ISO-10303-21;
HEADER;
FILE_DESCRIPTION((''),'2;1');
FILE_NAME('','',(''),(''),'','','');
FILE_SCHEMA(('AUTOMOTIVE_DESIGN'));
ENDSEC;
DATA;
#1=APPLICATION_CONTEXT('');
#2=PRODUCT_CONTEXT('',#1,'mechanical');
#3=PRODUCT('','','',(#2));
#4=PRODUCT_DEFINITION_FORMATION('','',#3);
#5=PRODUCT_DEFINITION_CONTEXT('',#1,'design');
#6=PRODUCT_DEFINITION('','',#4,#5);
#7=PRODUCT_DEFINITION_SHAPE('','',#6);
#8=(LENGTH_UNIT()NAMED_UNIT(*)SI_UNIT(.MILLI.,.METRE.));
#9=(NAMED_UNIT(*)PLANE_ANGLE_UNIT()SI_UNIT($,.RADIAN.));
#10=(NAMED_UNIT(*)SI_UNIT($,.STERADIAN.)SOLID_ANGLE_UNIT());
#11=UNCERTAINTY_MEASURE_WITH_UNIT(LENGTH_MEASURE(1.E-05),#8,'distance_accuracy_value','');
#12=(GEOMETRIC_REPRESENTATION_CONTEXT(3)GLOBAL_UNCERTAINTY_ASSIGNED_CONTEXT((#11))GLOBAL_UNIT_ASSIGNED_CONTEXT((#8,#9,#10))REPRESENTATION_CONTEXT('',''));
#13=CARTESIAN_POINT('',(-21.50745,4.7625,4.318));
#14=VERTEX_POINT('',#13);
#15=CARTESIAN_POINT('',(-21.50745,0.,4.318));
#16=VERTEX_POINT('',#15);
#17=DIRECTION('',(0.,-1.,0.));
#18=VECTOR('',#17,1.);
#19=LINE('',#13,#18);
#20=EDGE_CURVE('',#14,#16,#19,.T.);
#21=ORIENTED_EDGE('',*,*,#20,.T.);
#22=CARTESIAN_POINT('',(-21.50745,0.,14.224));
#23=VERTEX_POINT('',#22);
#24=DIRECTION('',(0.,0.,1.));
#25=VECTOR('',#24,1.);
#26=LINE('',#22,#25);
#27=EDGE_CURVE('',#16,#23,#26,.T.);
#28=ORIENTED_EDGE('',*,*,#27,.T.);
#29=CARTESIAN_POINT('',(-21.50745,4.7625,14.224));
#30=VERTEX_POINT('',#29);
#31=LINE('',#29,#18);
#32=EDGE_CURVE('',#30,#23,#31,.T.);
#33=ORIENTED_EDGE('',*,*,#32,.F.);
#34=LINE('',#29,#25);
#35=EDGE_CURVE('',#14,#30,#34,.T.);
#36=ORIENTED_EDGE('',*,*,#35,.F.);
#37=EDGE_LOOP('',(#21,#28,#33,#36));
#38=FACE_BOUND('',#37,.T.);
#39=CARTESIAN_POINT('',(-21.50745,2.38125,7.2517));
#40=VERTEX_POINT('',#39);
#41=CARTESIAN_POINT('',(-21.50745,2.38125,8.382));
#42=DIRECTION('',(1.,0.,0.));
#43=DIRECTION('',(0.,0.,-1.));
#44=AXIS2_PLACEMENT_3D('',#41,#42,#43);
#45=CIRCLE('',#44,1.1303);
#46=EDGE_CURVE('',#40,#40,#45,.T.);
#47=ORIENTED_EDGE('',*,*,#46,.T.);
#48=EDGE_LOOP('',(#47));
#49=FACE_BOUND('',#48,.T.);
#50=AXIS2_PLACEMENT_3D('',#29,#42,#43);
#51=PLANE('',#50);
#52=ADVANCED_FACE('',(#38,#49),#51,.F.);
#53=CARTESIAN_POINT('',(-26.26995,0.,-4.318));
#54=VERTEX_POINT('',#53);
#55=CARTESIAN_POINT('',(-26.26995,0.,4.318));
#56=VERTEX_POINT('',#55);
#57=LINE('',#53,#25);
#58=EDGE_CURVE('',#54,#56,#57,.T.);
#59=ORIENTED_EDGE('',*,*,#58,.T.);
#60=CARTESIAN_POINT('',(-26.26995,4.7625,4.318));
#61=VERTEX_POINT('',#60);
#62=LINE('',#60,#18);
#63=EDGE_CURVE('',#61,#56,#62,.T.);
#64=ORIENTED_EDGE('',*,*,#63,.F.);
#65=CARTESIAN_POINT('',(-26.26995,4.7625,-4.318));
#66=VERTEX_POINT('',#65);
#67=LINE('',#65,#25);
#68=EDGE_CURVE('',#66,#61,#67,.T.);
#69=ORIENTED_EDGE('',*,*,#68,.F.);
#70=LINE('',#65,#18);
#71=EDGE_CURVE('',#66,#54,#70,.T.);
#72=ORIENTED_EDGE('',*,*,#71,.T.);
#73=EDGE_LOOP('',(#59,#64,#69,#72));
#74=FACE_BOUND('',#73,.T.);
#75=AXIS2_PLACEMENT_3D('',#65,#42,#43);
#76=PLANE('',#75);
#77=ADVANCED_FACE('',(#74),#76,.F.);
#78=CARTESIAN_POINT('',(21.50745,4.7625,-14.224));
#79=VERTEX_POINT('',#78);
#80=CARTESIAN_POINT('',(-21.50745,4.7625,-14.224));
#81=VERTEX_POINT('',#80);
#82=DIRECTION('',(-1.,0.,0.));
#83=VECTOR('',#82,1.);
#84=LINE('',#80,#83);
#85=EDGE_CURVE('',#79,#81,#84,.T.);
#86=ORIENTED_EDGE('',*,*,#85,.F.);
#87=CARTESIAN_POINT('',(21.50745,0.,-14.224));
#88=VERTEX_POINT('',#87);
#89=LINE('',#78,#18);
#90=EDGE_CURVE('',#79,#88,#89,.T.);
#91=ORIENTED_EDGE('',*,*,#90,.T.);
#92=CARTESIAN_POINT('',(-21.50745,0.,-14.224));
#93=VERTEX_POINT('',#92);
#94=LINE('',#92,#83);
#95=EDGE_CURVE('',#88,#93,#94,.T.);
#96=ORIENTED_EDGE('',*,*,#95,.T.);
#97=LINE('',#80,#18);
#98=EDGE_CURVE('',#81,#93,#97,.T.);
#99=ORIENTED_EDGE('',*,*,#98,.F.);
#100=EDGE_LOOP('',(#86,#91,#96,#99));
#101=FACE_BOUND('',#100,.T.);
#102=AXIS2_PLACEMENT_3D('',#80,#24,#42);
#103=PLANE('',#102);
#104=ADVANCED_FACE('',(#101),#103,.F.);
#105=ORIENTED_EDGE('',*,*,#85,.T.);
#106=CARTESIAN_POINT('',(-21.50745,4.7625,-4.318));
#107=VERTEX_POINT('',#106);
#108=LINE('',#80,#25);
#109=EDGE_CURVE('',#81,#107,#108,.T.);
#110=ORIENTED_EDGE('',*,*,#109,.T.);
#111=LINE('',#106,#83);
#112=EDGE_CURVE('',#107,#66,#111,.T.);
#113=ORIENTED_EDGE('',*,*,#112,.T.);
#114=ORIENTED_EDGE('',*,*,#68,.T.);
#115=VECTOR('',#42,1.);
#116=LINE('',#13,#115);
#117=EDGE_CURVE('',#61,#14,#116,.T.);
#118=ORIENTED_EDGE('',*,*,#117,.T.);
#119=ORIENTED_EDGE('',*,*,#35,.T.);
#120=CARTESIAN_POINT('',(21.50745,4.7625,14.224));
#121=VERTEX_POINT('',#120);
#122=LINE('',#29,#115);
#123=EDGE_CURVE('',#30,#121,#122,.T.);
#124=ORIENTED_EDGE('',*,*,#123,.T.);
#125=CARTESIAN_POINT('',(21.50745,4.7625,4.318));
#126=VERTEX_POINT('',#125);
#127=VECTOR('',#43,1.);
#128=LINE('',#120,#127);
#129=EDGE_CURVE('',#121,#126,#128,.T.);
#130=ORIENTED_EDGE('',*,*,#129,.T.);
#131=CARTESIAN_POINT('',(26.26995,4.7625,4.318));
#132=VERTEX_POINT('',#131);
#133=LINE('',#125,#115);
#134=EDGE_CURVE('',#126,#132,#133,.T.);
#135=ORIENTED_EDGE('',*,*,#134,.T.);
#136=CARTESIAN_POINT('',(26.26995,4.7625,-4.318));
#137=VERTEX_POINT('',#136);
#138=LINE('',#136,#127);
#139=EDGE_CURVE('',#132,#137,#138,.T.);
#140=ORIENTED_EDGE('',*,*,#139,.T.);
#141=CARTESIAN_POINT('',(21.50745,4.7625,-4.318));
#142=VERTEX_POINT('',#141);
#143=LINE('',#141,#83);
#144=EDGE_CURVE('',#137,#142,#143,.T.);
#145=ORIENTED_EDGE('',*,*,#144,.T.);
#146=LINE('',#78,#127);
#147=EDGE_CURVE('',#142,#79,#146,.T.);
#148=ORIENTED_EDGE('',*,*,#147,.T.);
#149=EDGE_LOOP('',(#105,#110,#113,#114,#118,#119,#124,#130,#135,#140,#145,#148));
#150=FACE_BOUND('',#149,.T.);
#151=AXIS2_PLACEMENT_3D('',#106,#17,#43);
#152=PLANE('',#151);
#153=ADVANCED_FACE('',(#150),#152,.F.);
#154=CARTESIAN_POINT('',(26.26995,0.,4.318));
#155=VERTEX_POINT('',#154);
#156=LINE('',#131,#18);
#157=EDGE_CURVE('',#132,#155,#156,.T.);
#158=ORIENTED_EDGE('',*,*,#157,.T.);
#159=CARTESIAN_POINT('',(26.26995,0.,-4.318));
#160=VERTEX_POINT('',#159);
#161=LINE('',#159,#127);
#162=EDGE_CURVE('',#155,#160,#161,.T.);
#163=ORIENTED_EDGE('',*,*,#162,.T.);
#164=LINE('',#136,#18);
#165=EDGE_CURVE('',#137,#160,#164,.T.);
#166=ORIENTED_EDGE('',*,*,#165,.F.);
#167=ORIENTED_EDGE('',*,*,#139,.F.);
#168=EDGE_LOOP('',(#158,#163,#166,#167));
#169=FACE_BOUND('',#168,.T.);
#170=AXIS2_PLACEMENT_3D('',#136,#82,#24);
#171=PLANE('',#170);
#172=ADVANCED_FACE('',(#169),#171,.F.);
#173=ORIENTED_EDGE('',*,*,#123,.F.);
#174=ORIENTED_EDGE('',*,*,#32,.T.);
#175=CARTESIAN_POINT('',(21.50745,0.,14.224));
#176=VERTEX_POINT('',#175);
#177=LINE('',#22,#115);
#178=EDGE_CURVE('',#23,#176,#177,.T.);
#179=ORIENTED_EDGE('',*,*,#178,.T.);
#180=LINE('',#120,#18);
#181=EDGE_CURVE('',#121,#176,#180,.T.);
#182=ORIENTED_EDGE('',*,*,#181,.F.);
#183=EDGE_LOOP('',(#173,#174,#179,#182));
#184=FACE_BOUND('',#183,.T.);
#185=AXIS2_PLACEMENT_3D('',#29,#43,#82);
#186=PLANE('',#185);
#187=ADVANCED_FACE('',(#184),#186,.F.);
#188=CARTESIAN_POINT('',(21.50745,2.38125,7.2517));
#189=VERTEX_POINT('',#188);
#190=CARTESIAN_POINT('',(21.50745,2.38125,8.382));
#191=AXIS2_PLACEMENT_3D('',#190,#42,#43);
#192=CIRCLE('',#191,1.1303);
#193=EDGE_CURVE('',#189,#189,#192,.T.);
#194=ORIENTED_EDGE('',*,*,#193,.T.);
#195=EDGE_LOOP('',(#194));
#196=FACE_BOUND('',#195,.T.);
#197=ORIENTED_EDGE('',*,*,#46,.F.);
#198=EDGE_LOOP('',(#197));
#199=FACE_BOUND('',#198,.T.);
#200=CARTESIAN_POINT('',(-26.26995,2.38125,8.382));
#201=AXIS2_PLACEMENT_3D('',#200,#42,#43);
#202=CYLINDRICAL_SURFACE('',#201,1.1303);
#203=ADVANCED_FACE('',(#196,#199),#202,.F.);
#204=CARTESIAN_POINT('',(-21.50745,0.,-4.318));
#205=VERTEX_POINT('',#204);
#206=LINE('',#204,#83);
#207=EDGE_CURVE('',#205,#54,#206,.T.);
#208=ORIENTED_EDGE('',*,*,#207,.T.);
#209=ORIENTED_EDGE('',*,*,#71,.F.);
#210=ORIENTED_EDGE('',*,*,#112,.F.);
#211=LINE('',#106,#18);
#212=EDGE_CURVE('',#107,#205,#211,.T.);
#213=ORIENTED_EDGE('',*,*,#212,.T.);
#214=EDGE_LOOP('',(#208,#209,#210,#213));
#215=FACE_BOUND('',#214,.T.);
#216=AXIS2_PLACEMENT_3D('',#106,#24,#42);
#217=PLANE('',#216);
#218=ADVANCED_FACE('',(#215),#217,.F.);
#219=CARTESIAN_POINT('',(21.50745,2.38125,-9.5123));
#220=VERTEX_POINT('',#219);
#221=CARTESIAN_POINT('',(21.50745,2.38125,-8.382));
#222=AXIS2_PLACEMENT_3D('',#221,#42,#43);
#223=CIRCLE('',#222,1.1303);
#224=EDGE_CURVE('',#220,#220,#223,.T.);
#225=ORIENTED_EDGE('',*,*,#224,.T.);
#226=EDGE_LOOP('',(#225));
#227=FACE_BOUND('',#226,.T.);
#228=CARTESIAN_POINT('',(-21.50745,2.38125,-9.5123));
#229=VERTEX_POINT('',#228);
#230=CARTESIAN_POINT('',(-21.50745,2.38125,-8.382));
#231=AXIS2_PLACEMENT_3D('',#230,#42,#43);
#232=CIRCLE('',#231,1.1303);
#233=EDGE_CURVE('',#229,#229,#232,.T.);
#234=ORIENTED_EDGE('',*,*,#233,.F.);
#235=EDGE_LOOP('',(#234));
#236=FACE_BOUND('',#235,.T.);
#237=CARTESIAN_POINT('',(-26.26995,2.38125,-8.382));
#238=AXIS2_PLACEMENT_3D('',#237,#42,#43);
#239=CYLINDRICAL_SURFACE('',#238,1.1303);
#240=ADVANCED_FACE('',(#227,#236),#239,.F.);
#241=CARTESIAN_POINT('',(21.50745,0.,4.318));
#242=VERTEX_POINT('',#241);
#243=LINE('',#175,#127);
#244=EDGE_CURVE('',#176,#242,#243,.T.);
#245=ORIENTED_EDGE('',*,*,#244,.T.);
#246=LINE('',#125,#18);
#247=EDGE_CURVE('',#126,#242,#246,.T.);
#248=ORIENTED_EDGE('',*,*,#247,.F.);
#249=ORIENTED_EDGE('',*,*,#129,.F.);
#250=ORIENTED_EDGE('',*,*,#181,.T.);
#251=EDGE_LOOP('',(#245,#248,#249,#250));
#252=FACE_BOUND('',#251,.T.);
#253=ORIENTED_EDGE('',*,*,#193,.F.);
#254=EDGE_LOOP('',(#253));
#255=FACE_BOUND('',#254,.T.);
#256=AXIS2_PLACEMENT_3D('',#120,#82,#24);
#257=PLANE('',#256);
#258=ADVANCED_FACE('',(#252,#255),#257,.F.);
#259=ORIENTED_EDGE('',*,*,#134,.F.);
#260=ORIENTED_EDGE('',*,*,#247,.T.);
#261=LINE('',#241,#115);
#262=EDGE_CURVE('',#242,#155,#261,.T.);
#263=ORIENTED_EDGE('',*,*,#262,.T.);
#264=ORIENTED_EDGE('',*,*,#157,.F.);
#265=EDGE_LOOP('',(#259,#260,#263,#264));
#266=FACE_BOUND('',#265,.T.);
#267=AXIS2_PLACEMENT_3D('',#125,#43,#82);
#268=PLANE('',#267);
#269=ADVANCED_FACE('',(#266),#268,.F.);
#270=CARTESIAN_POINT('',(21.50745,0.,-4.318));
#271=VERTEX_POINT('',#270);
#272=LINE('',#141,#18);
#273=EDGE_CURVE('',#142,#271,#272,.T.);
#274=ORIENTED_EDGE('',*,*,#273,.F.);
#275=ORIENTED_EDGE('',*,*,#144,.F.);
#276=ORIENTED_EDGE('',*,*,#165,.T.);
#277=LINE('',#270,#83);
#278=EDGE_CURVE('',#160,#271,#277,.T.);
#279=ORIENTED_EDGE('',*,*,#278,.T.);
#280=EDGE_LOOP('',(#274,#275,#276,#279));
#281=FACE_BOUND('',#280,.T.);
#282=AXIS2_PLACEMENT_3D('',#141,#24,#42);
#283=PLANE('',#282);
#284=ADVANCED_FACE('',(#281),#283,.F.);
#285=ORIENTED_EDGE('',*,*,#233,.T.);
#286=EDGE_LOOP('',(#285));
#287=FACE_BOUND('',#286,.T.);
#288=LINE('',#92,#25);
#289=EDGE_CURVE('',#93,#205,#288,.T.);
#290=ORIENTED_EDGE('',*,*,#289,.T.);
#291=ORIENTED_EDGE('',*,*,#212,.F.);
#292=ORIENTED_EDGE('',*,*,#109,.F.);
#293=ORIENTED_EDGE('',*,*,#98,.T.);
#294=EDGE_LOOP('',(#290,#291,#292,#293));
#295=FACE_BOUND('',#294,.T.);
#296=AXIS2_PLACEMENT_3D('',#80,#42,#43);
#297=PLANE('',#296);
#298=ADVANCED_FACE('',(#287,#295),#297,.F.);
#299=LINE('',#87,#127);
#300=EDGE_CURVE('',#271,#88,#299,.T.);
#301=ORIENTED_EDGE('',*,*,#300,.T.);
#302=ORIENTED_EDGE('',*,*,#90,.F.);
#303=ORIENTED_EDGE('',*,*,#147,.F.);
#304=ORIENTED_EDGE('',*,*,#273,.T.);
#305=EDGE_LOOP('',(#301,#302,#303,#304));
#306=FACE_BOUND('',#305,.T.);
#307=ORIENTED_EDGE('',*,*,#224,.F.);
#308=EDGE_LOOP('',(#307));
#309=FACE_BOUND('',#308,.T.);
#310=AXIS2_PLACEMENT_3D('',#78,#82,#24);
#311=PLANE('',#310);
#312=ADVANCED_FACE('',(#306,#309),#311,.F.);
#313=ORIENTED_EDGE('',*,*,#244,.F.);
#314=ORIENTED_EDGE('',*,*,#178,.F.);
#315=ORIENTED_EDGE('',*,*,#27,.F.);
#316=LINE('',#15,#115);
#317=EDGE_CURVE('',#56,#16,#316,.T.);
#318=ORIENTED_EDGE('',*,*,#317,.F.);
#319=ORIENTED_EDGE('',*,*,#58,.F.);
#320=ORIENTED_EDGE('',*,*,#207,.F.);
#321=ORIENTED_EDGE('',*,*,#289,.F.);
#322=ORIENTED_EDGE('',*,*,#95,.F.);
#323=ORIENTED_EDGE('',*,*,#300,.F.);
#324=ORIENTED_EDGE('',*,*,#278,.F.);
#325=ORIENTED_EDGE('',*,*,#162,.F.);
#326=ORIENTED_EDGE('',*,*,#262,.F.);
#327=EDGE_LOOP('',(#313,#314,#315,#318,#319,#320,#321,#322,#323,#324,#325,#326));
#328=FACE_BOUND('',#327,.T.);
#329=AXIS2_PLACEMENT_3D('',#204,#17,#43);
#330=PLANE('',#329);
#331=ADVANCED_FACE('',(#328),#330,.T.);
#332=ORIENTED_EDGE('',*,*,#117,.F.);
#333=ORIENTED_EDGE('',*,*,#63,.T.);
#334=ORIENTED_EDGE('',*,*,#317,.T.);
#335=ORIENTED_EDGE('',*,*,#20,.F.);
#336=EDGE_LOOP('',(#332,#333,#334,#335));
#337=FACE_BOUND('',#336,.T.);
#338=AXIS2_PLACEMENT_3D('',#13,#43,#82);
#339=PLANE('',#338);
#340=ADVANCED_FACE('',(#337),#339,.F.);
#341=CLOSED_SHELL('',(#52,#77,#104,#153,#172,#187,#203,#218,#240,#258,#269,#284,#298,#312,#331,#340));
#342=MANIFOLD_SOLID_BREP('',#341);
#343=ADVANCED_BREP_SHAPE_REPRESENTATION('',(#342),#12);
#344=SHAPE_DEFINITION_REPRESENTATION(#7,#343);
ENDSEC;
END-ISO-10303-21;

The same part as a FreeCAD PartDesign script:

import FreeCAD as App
import Part
import Sketcher

V = App.Vector
Q = App.Units.Quantity

doc = App.newDocument("Part")
params = doc.addObject("Spreadsheet::Sheet", "Params")
for row, (alias, value) in enumerate([
    ("sketch1_height", "0.39 in"),
    ("sketch1_height2", "0.34 in"),
    ("sketch1_width", "0.1875 in"),
    ("pad1_length", "0.1875 in"),
    ("sketch2_diameter", "0.089 in"),
], start=1):
    params.set(f"A{row}", alias)
    params.set(f"B{row}", "=" + value)
    params.setAlias(f"B{row}", alias)

body = doc.addObject("PartDesign::Body", "Body")

sketch1 = body.newObject("Sketcher::SketchObject", "Sketch")
sketch1.AttachmentSupport = (doc.getObject("XZ_Plane"), [""])
sketch1.MapMode = "FlatFace"
sketch1.addGeometry([
    Part.LineSegment(V(21.50745, -14.224, 0), V(-21.50745, -14.224, 0)),
    Part.LineSegment(V(-21.50745, -14.224, 0), V(-21.50745, -4.318, 0)),
    Part.LineSegment(V(-21.50745, -4.318, 0), V(-26.26995, -4.318, 0)),
    Part.LineSegment(V(-26.26995, -4.318, 0), V(-26.26995, 4.318, 0)),
    Part.LineSegment(V(-26.26995, 4.318, 0), V(-21.50745, 4.318, 0)),
    Part.LineSegment(V(-21.50745, 4.318, 0), V(-21.50745, 14.224, 0)),
    Part.LineSegment(V(-21.50745, 14.224, 0), V(21.50745, 14.224, 0)),
    Part.LineSegment(V(21.50745, 14.224, 0), V(21.50745, 4.318, 0)),
    Part.LineSegment(V(21.50745, 4.318, 0), V(26.26995, 4.318, 0)),
    Part.LineSegment(V(26.26995, 4.318, 0), V(26.26995, -4.318, 0)),
    Part.LineSegment(V(26.26995, -4.318, 0), V(21.50745, -4.318, 0)),
    Part.LineSegment(V(21.50745, -4.318, 0), V(21.50745, -14.224, 0)),
], False)
sketch1.addConstraint([
    Sketcher.Constraint("Coincident", 0, 2, 1, 1),
    Sketcher.Constraint("Coincident", 1, 2, 2, 1),
    Sketcher.Constraint("Coincident", 2, 2, 3, 1),
    Sketcher.Constraint("Coincident", 3, 2, 4, 1),
    Sketcher.Constraint("Coincident", 4, 2, 5, 1),
    Sketcher.Constraint("Coincident", 5, 2, 6, 1),
    Sketcher.Constraint("Coincident", 6, 2, 7, 1),
    Sketcher.Constraint("Coincident", 7, 2, 8, 1),
    Sketcher.Constraint("Coincident", 8, 2, 9, 1),
    Sketcher.Constraint("Coincident", 9, 2, 10, 1),
    Sketcher.Constraint("Coincident", 10, 2, 11, 1),
    Sketcher.Constraint("Coincident", 11, 2, 0, 1),
    Sketcher.Constraint("Horizontal", 0),
    Sketcher.Constraint("Vertical", 1),
    Sketcher.Constraint("Horizontal", 2),
    Sketcher.Constraint("Vertical", 3),
    Sketcher.Constraint("Horizontal", 4),
    Sketcher.Constraint("Vertical", 5),
    Sketcher.Constraint("Horizontal", 6),
    Sketcher.Constraint("Vertical", 7),
    Sketcher.Constraint("Horizontal", 8),
    Sketcher.Constraint("Vertical", 9),
    Sketcher.Constraint("Horizontal", 10),
    Sketcher.Constraint("Vertical", 11),
    Sketcher.Constraint("Symmetric", 0, 2, 6, 2, -1, 1),
    Sketcher.Constraint("Symmetric", 2, 2, 8, 2, -1, 1),
    Sketcher.Constraint("Symmetric", 4, 2, 10, 2, -1, 1),
    Sketcher.Constraint("Symmetric", 4, 2, 7, 2, -2),
    Sketcher.Constraint("DistanceY", 1, 1, 1, 2, Q("0.39 in")),
    Sketcher.Constraint("DistanceY", 3, 1, 3, 2, Q("0.34 in")),
    Sketcher.Constraint("DistanceX", 2, 2, 2, 1, Q("0.1875 in")),
    Sketcher.Constraint("DistanceX", 0, 2, 0, 1, Q("1.6935 in")),
])
sketch1.setExpression("Constraints[28]", "Params.sketch1_height")
sketch1.setExpression("Constraints[29]", "Params.sketch1_height2")
sketch1.setExpression("Constraints[30]", "Params.sketch1_width")
pad1 = body.newObject("PartDesign::Pad", "Pad")
pad1.Profile = sketch1
pad1.setExpression("Length", "Params.pad1_length")
pad1.Reversed = True

sketch2 = body.newObject("Sketcher::SketchObject", "Sketch001")
sketch2.AttachmentSupport = (doc.getObject("YZ_Plane"), [""])
sketch2.MapMode = "FlatFace"
sketch2.AttachmentOffset = App.Placement(V(0, 0, 21.50745), App.Rotation())
sketch2.addGeometry([
    Part.Circle(V(2.38125, 8.382, 0), V(0, 0, 1), 1.1303),
    Part.Circle(V(2.38125, -8.382, 0), V(0, 0, 1), 1.1303),
], False)
sketch2.addConstraint([
    Sketcher.Constraint("Equal", 0, 1),
    Sketcher.Constraint("Symmetric", 0, 3, 1, 3, -1),
    Sketcher.Constraint("Diameter", 0, Q("0.089 in")),
    Sketcher.Constraint("DistanceY", -1, 1, 0, 3, Q("0.33 in")),
    Sketcher.Constraint("DistanceX", -1, 1, 0, 3, Q("0.09375 in")),
])
sketch2.setExpression("Constraints[2]", "Params.sketch2_diameter")
pocket1 = body.newObject("PartDesign::Pocket", "Pocket")
pocket1.Profile = sketch2
pocket1.Type = "ThroughAll"

doc.recompute()
